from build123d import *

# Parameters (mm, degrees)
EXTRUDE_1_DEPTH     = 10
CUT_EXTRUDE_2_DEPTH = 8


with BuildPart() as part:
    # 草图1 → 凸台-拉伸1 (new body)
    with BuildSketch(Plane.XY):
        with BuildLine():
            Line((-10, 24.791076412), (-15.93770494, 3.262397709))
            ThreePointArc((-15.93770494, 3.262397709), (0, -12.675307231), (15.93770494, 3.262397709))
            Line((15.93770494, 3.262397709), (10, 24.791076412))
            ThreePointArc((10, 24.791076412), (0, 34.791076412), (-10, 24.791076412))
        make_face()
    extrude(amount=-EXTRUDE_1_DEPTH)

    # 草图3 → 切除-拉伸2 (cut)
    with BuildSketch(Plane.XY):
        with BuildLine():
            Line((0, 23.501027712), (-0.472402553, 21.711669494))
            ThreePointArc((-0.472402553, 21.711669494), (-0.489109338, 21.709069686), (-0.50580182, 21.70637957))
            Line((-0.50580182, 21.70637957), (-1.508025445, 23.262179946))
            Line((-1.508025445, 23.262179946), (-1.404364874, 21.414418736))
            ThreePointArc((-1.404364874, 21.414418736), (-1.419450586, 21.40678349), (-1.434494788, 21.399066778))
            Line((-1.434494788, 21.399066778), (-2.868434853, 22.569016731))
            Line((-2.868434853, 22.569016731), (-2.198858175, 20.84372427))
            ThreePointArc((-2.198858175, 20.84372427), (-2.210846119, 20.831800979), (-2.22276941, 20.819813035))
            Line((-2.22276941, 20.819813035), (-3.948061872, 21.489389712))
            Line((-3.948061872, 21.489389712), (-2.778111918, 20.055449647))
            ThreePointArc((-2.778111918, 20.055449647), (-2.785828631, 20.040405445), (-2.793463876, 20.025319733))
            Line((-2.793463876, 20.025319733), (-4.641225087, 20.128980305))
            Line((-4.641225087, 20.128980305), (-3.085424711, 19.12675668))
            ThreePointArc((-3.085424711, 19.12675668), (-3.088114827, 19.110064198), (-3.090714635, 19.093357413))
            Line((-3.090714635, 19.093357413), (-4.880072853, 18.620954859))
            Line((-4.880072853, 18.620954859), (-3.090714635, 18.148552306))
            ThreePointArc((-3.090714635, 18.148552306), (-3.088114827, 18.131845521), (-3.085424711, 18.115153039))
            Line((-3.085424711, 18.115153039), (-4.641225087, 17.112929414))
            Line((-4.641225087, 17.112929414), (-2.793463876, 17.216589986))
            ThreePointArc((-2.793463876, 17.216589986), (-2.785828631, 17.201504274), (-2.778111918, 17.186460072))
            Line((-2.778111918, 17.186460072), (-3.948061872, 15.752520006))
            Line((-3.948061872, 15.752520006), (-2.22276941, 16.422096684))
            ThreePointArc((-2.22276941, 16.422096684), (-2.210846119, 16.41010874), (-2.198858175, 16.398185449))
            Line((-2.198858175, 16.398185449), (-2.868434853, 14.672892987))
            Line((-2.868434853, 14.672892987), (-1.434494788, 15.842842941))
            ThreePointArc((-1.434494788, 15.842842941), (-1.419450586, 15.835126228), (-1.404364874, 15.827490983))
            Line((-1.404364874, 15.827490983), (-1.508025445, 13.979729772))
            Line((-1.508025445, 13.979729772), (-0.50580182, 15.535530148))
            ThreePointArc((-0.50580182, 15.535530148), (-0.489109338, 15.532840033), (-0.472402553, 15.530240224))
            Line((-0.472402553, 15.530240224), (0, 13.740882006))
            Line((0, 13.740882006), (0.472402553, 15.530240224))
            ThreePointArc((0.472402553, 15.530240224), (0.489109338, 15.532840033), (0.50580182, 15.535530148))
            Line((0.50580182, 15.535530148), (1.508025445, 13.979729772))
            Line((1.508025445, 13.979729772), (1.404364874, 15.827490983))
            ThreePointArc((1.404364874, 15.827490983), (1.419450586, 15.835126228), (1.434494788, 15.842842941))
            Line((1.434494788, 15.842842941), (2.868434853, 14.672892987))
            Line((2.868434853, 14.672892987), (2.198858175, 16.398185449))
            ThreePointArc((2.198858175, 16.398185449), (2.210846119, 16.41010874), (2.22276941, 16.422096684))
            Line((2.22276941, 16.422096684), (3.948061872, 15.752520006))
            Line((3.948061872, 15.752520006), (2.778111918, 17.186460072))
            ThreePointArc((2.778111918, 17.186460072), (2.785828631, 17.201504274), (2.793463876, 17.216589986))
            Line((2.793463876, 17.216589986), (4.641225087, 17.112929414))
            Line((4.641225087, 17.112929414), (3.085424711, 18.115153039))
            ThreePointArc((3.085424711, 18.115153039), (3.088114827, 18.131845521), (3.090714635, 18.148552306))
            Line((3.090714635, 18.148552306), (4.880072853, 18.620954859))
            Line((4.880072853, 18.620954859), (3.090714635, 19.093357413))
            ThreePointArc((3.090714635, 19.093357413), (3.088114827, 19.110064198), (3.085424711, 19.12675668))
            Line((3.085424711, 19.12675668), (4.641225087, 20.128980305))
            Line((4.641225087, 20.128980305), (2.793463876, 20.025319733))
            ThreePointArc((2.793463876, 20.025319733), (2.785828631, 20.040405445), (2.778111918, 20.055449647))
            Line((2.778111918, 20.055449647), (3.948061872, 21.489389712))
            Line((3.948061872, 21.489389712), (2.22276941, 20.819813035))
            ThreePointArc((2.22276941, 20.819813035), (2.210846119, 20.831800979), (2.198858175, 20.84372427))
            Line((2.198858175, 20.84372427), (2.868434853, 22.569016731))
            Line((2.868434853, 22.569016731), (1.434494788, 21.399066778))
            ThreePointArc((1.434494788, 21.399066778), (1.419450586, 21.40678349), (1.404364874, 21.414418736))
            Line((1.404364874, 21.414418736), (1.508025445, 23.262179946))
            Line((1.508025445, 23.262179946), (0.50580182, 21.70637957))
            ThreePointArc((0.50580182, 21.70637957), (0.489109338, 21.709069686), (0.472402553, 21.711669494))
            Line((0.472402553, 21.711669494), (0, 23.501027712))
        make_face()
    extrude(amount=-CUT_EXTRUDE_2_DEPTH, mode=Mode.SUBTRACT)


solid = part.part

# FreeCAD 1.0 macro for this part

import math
import FreeCAD as App
import Part
import Sketcher
Q = App.Units.Quantity

doc = App.newDocument("Part")
body = doc.addObject("PartDesign::Body", "Body")

# Sketch on XY plane
sketch1 = body.newObject("Sketcher::SketchObject", "Sketch")
sketch1.AttachmentSupport = (doc.getObject("XY_Plane"), [""])
sketch1.MapMode = "FlatFace"
sketch1.addGeometry(Part.LineSegment(App.Vector(-10, 25, 0), App.Vector(-16, 3, 0)), False)
sketch1.addGeometry(Part.ArcOfCircle(Part.Circle(App.Vector(0, 3, 0), App.Vector(0, 0, 1), 16), math.radians(180), math.radians(360)), False)
sketch1.addGeometry(Part.LineSegment(App.Vector(16, 3, 0), App.Vector(10, 25, 0)), False)
sketch1.addGeometry(Part.ArcOfCircle(Part.Circle(App.Vector(0, 25, 0), App.Vector(0, 0, 1), 10), math.radians(0), math.radians(180)), False)
sketch1.addConstraint(Sketcher.Constraint("Coincident", 0, 2, 1, 1))
sketch1.addConstraint(Sketcher.Constraint("Coincident", 1, 2, 2, 1))
sketch1.addConstraint(Sketcher.Constraint("Coincident", 2, 2, 3, 1))
sketch1.addConstraint(Sketcher.Constraint("Coincident", 3, 2, 0, 1))
sketch1.addConstraint(Sketcher.Constraint("Symmetric", 0, 2, 1, 2, -2))
sketch1.addConstraint(Sketcher.Constraint("Symmetric", 2, 2, 3, 2, -2))
sketch1.addConstraint(Sketcher.Constraint("Horizontal", 1, 3, 0, 2))
sketch1.addConstraint(Sketcher.Constraint("Horizontal", 3, 3, 2, 2))
sketch1.addConstraint(Sketcher.Constraint("Radius", 3, Q("10 mm")))
sketch1.addConstraint(Sketcher.Constraint("Radius", 1, Q("15.937705 mm")))
sketch1.addConstraint(Sketcher.Constraint("DistanceY", 1, 3, 3, 3, Q("21.528679 mm")))
sketch1.addConstraint(Sketcher.Constraint("DistanceY", -1, 1, 1, 3, Q("3.262398 mm")))
pad1 = body.newObject("PartDesign::Pad", "Pad")
pad1.Profile = sketch1
pad1.Length = 10
pad1.Reversed = True

# Sketch on XY plane
sketch2 = body.newObject("Sketcher::SketchObject", "Sketch001")
sketch2.AttachmentSupport = (doc.getObject("XY_Plane"), [""])
sketch2.MapMode = "FlatFace"
sketch2.addGeometry(Part.LineSegment(App.Vector(0, 23.501028, 0), App.Vector(-0.472403, 21.711669, 0)), False)
sketch2.addGeometry(Part.ArcOfCircle(Part.Circle(App.Vector(-0.000003, 18.620971, 0), App.Vector(0, 0, 1), 3.126592), math.radians(98.690157), math.radians(99.309842)), False)
sketch2.addGeometry(Part.LineSegment(App.Vector(-0.505802, 21.70638, 0), App.Vector(-1.508025, 23.26218, 0)), False)
sketch2.addGeometry(Part.LineSegment(App.Vector(-1.508025, 23.26218, 0), App.Vector(-1.404365, 21.414419, 0)), False)
sketch2.addGeometry(Part.ArcOfCircle(Part.Circle(App.Vector(0.00002, 18.620916, 0), App.Vector(0, 0, 1), 3.126652), math.radians(116.690164), math.radians(117.309836)), False)
sketch2.addGeometry(Part.LineSegment(App.Vector(-1.434495, 21.399067, 0), App.Vector(-2.868435, 22.569017, 0)), False)
sketch2.addGeometry(Part.LineSegment(App.Vector(-2.868435, 22.569017, 0), App.Vector(-2.198858, 20.843724, 0)), False)
sketch2.addGeometry(Part.ArcOfCircle(Part.Circle(App.Vector(0, 18.620955, 0), App.Vector(0, 0, 1), 3.126609), math.radians(134.690159), math.radians(135.309841)), False)
sketch2.addGeometry(Part.LineSegment(App.Vector(-2.222769, 20.819813, 0), App.Vector(-3.948062, 21.48939, 0)), False)
sketch2.addGeometry(Part.LineSegment(App.Vector(-3.948062, 21.48939, 0), App.Vector(-2.778112, 20.05545, 0)), False)
sketch2.addGeometry(Part.ArcOfCircle(Part.Circle(App.Vector(-0.000016, 18.620963, 0), App.Vector(0, 0, 1), 3.126591), math.radians(152.690158), math.radians(153.309842)), False)
sketch2.addGeometry(Part.LineSegment(App.Vector(-2.793464, 20.02532, 0), App.Vector(-4.641225, 20.12898, 0)), False)
sketch2.addGeometry(Part.LineSegment(App.Vector(-4.641225, 20.12898, 0), App.Vector(-3.085425, 19.126757, 0)), False)
sketch2.addGeometry(Part.ArcOfCircle(Part.Circle(App.Vector(-0.000017, 18.620957, 0), App.Vector(0, 0, 1), 3.126592), math.radians(170.690158), math.radians(171.309843)), False)
sketch2.addGeometry(Part.LineSegment(App.Vector(-3.090715, 19.093357, 0), App.Vector(-4.880073, 18.620955, 0)), False)
sketch2.addGeometry(Part.LineSegment(App.Vector(-4.880073, 18.620955, 0), App.Vector(-3.090715, 18.148552, 0)), False)
sketch2.addGeometry(Part.ArcOfCircle(Part.Circle(App.Vector(-0.000017, 18.620952, 0), App.Vector(0, 0, 1), 3.126592), math.radians(-171.309843), math.radians(-170.690158)), False)
sketch2.addGeometry(Part.LineSegment(App.Vector(-3.085425, 18.115153, 0), App.Vector(-4.641225, 17.112929, 0)), False)
sketch2.addGeometry(Part.LineSegment(App.Vector(-4.641225, 17.112929, 0), App.Vector(-2.793464, 17.21659, 0)), False)
sketch2.addGeometry(Part.ArcOfCircle(Part.Circle(App.Vector(-0.000016, 18.620947, 0), App.Vector(0, 0, 1), 3.126591), math.radians(-153.309842), math.radians(-152.690158)), False)
sketch2.addGeometry(Part.LineSegment(App.Vector(-2.778112, 17.18646, 0), App.Vector(-3.948062, 15.75252, 0)), False)
sketch2.addGeometry(Part.LineSegment(App.Vector(-3.948062, 15.75252, 0), App.Vector(-2.222769, 16.422097, 0)), False)
sketch2.addGeometry(Part.ArcOfCircle(Part.Circle(App.Vector(0, 18.620955, 0), App.Vector(0, 0, 1), 3.126609), math.radians(-135.309841), math.radians(-134.690159)), False)
sketch2.addGeometry(Part.LineSegment(App.Vector(-2.198858, 16.398185, 0), App.Vector(-2.868435, 14.672893, 0)), False)
sketch2.addGeometry(Part.LineSegment(App.Vector(-2.868435, 14.672893, 0), App.Vector(-1.434495, 15.842843, 0)), False)
sketch2.addGeometry(Part.ArcOfCircle(Part.Circle(App.Vector(-0.000008, 18.620939, 0), App.Vector(0, 0, 1), 3.126591), math.radians(-117.309842), math.radians(-116.690158)), False)
sketch2.addGeometry(Part.LineSegment(App.Vector(-1.404365, 15.827491, 0), App.Vector(-1.508025, 13.97973, 0)), False)
sketch2.addGeometry(Part.LineSegment(App.Vector(-1.508025, 13.97973, 0), App.Vector(-0.505802, 15.53553, 0)), False)
sketch2.addGeometry(Part.ArcOfCircle(Part.Circle(App.Vector(0.000008, 18.621005, 0), App.Vector(0, 0, 1), 3.126659), math.radians(-99.309835), math.radians(-98.690164)), False)
sketch2.addGeometry(Part.LineSegment(App.Vector(-0.472403, 15.53024, 0), App.Vector(0, 13.740882, 0)), False)
sketch2.addGeometry(Part.LineSegment(App.Vector(0, 13.740882, 0), App.Vector(0.472403, 15.53024, 0)), False)
sketch2.addGeometry(Part.ArcOfCircle(Part.Circle(App.Vector(-0.000008, 18.621005, 0), App.Vector(0, 0, 1), 3.126659), math.radians(-81.309836), math.radians(-80.690165)), False)
sketch2.addGeometry(Part.LineSegment(App.Vector(0.505802, 15.53553, 0), App.Vector(1.508025, 13.97973, 0)), False)
sketch2.addGeometry(Part.LineSegment(App.Vector(1.508025, 13.97973, 0), App.Vector(1.404365, 15.827491, 0)), False)
sketch2.addGeometry(Part.ArcOfCircle(Part.Circle(App.Vector(0.000008, 18.620939, 0), App.Vector(0, 0, 1), 3.126591), math.radians(-63.309842), math.radians(-62.690158)), False)
sketch2.addGeometry(Part.LineSegment(App.Vector(1.434495, 15.842843, 0), App.Vector(2.868435, 14.672893, 0)), False)
sketch2.addGeometry(Part.LineSegment(App.Vector(2.868435, 14.672893, 0), App.Vector(2.198858, 16.398185, 0)), False)
sketch2.addGeometry(Part.ArcOfCircle(Part.Circle(App.Vector(0, 18.620955, 0), App.Vector(0, 0, 1), 3.126609), math.radians(-45.309841), math.radians(-44.690159)), False)
sketch2.addGeometry(Part.LineSegment(App.Vector(2.222769, 16.422097, 0), App.Vector(3.948062, 15.75252, 0)), False)
sketch2.addGeometry(Part.LineSegment(App.Vector(3.948062, 15.75252, 0), App.Vector(2.778112, 17.18646, 0)), False)
sketch2.addGeometry(Part.ArcOfCircle(Part.Circle(App.Vector(0.000016, 18.620947, 0), App.Vector(0, 0, 1), 3.126591), math.radians(-27.309842), math.radians(-26.690158)), False)
sketch2.addGeometry(Part.LineSegment(App.Vector(2.793464, 17.21659, 0), App.Vector(4.641225, 17.112929, 0)), False)
sketch2.addGeometry(Part.LineSegment(App.Vector(4.641225, 17.112929, 0), App.Vector(3.085425, 18.115153, 0)), False)
sketch2.addGeometry(Part.ArcOfCircle(Part.Circle(App.Vector(0.000017, 18.620952, 0), App.Vector(0, 0, 1), 3.126592), math.radians(-9.309842), math.radians(-8.690157)), False)
sketch2.addGeometry(Part.LineSegment(App.Vector(3.090715, 18.148552, 0), App.Vector(4.880073, 18.620955, 0)), False)
sketch2.addGeometry(Part.LineSegment(App.Vector(4.880073, 18.620955, 0), App.Vector(3.090715, 19.093357, 0)), False)
sketch2.addGeometry(Part.ArcOfCircle(Part.Circle(App.Vector(0.000017, 18.620957, 0), App.Vector(0, 0, 1), 3.126592), math.radians(8.690157), math.radians(9.309842)), False)
sketch2.addGeometry(Part.LineSegment(App.Vector(3.085425, 19.126757, 0), App.Vector(4.641225, 20.12898, 0)), False)
sketch2.addGeometry(Part.LineSegment(App.Vector(4.641225, 20.12898, 0), App.Vector(2.793464, 20.02532, 0)), False)
sketch2.addGeometry(Part.ArcOfCircle(Part.Circle(App.Vector(0.000016, 18.620963, 0), App.Vector(0, 0, 1), 3.126591), math.radians(26.690158), math.radians(27.309842)), False)
sketch2.addGeometry(Part.LineSegment(App.Vector(2.778112, 20.05545, 0), App.Vector(3.948062, 21.48939, 0)), False)
sketch2.addGeometry(Part.LineSegment(App.Vector(3.948062, 21.48939, 0), App.Vector(2.222769, 20.819813, 0)), False)
sketch2.addGeometry(Part.ArcOfCircle(Part.Circle(App.Vector(0, 18.620955, 0), App.Vector(0, 0, 1), 3.126609), math.radians(44.690159), math.radians(45.309841)), False)
sketch2.addGeometry(Part.LineSegment(App.Vector(2.198858, 20.843724, 0), App.Vector(2.868435, 22.569017, 0)), False)
sketch2.addGeometry(Part.LineSegment(App.Vector(2.868435, 22.569017, 0), App.Vector(1.434495, 21.399067, 0)), False)
sketch2.addGeometry(Part.ArcOfCircle(Part.Circle(App.Vector(-0.00002, 18.620916, 0), App.Vector(0, 0, 1), 3.126652), math.radians(62.690164), math.radians(63.309836)), False)
sketch2.addGeometry(Part.LineSegment(App.Vector(1.404365, 21.414419, 0), App.Vector(1.508025, 23.26218, 0)), False)
sketch2.addGeometry(Part.LineSegment(App.Vector(1.508025, 23.26218, 0), App.Vector(0.505802, 21.70638, 0)), False)
sketch2.addGeometry(Part.ArcOfCircle(Part.Circle(App.Vector(0.000003, 18.620971, 0), App.Vector(0, 0, 1), 3.126592), math.radians(80.690158), math.radians(81.309843)), False)
sketch2.addGeometry(Part.LineSegment(App.Vector(0.472403, 21.711669, 0), App.Vector(0, 23.501028, 0)), False)
sketch2.addConstraint(Sketcher.Constraint("Coincident", 0, 2, 1, 1))
sketch2.addConstraint(Sketcher.Constraint("Coincident", 1, 2, 2, 1))
sketch2.addConstraint(Sketcher.Constraint("Coincident", 2, 2, 3, 1))
sketch2.addConstraint(Sketcher.Constraint("Coincident", 3, 2, 4, 1))
sketch2.addConstraint(Sketcher.Constraint("Coincident", 4, 2, 5, 1))
sketch2.addConstraint(Sketcher.Constraint("Coincident", 5, 2, 6, 1))
sketch2.addConstraint(Sketcher.Constraint("Coincident", 6, 2, 7, 1))
sketch2.addConstraint(Sketcher.Constraint("Coincident", 7, 2, 8, 1))
sketch2.addConstraint(Sketcher.Constraint("Coincident", 8, 2, 9, 1))
sketch2.addConstraint(Sketcher.Constraint("Coincident", 9, 2, 10, 1))
sketch2.addConstraint(Sketcher.Constraint("Coincident", 10, 2, 11, 1))
sketch2.addConstraint(Sketcher.Constraint("Coincident", 11, 2, 12, 1))
sketch2.addConstraint(Sketcher.Constraint("Coincident", 12, 2, 13, 1))
sketch2.addConstraint(Sketcher.Constraint("Coincident", 13, 2, 14, 1))
sketch2.addConstraint(Sketcher.Constraint("Coincident", 14, 2, 15, 1))
sketch2.addConstraint(Sketcher.Constraint("Coincident", 15, 2, 16, 1))
sketch2.addConstraint(Sketcher.Constraint("Coincident", 16, 2, 17, 1))
sketch2.addConstraint(Sketcher.Constraint("Coincident", 17, 2, 18, 1))
sketch2.addConstraint(Sketcher.Constraint("Coincident", 18, 2, 19, 1))
sketch2.addConstraint(Sketcher.Constraint("Coincident", 19, 2, 20, 1))
sketch2.addConstraint(Sketcher.Constraint("Coincident", 20, 2, 21, 1))
sketch2.addConstraint(Sketcher.Constraint("Coincident", 21, 2, 22, 1))
sketch2.addConstraint(Sketcher.Constraint("Coincident", 22, 2, 23, 1))
sketch2.addConstraint(Sketcher.Constraint("Coincident", 23, 2, 24, 1))
sketch2.addConstraint(Sketcher.Constraint("Coincident", 24, 2, 25, 1))
sketch2.addConstraint(Sketcher.Constraint("Coincident", 25, 2, 26, 1))
sketch2.addConstraint(Sketcher.Constraint("Coincident", 26, 2, 27, 1))
sketch2.addConstraint(Sketcher.Constraint("Coincident", 27, 2, 28, 1))
sketch2.addConstraint(Sketcher.Constraint("Coincident", 28, 2, 29, 1))
sketch2.addConstraint(Sketcher.Constraint("Coincident", 29, 2, 30, 1))
sketch2.addConstraint(Sketcher.Constraint("Coincident", 30, 2, 31, 1))
sketch2.addConstraint(Sketcher.Constraint("Coincident", 31, 2, 32, 1))
sketch2.addConstraint(Sketcher.Constraint("Coincident", 32, 2, 33, 1))
sketch2.addConstraint(Sketcher.Constraint("Coincident", 33, 2, 34, 1))
sketch2.addConstraint(Sketcher.Constraint("Coincident", 34, 2, 35, 1))
sketch2.addConstraint(Sketcher.Constraint("Coincident", 35, 2, 36, 1))
sketch2.addConstraint(Sketcher.Constraint("Coincident", 36, 2, 37, 1))
sketch2.addConstraint(Sketcher.Constraint("Coincident", 37, 2, 38, 1))
sketch2.addConstraint(Sketcher.Constraint("Coincident", 38, 2, 39, 1))
sketch2.addConstraint(Sketcher.Constraint("Coincident", 39, 2, 40, 1))
sketch2.addConstraint(Sketcher.Constraint("Coincident", 40, 2, 41, 1))
sketch2.addConstraint(Sketcher.Constraint("Coincident", 41, 2, 42, 1))
sketch2.addConstraint(Sketcher.Constraint("Coincident", 42, 2, 43, 1))
sketch2.addConstraint(Sketcher.Constraint("Coincident", 43, 2, 44, 1))
sketch2.addConstraint(Sketcher.Constraint("Coincident", 44, 2, 45, 1))
sketch2.addConstraint(Sketcher.Constraint("Coincident", 45, 2, 46, 1))
sketch2.addConstraint(Sketcher.Constraint("Coincident", 46, 2, 47, 1))
sketch2.addConstraint(Sketcher.Constraint("Coincident", 47, 2, 48, 1))
sketch2.addConstraint(Sketcher.Constraint("Coincident", 48, 2, 49, 1))
sketch2.addConstraint(Sketcher.Constraint("Coincident", 49, 2, 50, 1))
sketch2.addConstraint(Sketcher.Constraint("Coincident", 50, 2, 51, 1))
sketch2.addConstraint(Sketcher.Constraint("Coincident", 51, 2, 52, 1))
sketch2.addConstraint(Sketcher.Constraint("Coincident", 52, 2, 53, 1))
sketch2.addConstraint(Sketcher.Constraint("Coincident", 53, 2, 54, 1))
sketch2.addConstraint(Sketcher.Constraint("Coincident", 54, 2, 55, 1))
sketch2.addConstraint(Sketcher.Constraint("Coincident", 55, 2, 56, 1))
sketch2.addConstraint(Sketcher.Constraint("Coincident", 56, 2, 57, 1))
sketch2.addConstraint(Sketcher.Constraint("Coincident", 57, 2, 58, 1))
sketch2.addConstraint(Sketcher.Constraint("Coincident", 58, 2, 59, 1))
sketch2.addConstraint(Sketcher.Constraint("Coincident", 59, 2, 0, 1))
sketch2.addConstraint(Sketcher.Constraint("Coincident", 13, 3, 10, 3))
sketch2.addConstraint(Sketcher.Constraint("Coincident", 16, 3, 13, 3))
sketch2.addConstraint(Sketcher.Constraint("Coincident", 19, 3, 16, 3))
sketch2.addConstraint(Sketcher.Constraint("Coincident", 22, 3, 7, 3))
sketch2.addConstraint(Sketcher.Constraint("Coincident", 37, 3, 7, 3))
sketch2.addConstraint(Sketcher.Constraint("Coincident", 43, 3, 40, 3))
sketch2.addConstraint(Sketcher.Constraint("Coincident", 46, 3, 43, 3))
sketch2.addConstraint(Sketcher.Constraint("Coincident", 49, 3, 46, 3))
sketch2.addConstraint(Sketcher.Constraint("Coincident", 52, 3, 7, 3))
sketch2.addConstraint(Sketcher.Constraint("Coincident", 58, 3, 1, 3))
sketch2.addConstraint(Sketcher.Constraint("PointOnObject", 7, 3, -2))
sketch2.addConstraint(Sketcher.Constraint("PointOnObject", 29, 2, -2))
sketch2.addConstraint(Sketcher.Constraint("PointOnObject", 59, 2, -2))
sketch2.addConstraint(Sketcher.Constraint("Radius", 1, Q("3.126592 mm")))
sketch2.addConstraint(Sketcher.Constraint("Radius", 4, Q("3.126652 mm")))
sketch2.addConstraint(Sketcher.Constraint("Radius", 7, Q("3.126609 mm")))
sketch2.addConstraint(Sketcher.Constraint("Radius", 10, Q("3.126591 mm")))
sketch2.addConstraint(Sketcher.Constraint("Radius", 13, Q("3.126592 mm")))
sketch2.addConstraint(Sketcher.Constraint("Radius", 16, Q("3.126592 mm")))
sketch2.addConstraint(Sketcher.Constraint("Radius", 19, Q("3.126591 mm")))
sketch2.addConstraint(Sketcher.Constraint("Radius", 22, Q("3.126609 mm")))
sketch2.addConstraint(Sketcher.Constraint("Radius", 25, Q("3.126591 mm")))
sketch2.addConstraint(Sketcher.Constraint("Radius", 28, Q("3.126659 mm")))
sketch2.addConstraint(Sketcher.Constraint("Radius", 31, Q("3.126659 mm")))
sketch2.addConstraint(Sketcher.Constraint("Radius", 34, Q("3.126591 mm")))
sketch2.addConstraint(Sketcher.Constraint("Radius", 37, Q("3.126609 mm")))
sketch2.addConstraint(Sketcher.Constraint("Radius", 40, Q("3.126591 mm")))
sketch2.addConstraint(Sketcher.Constraint("Radius", 43, Q("3.126592 mm")))
sketch2.addConstraint(Sketcher.Constraint("Radius", 46, Q("3.126592 mm")))
sketch2.addConstraint(Sketcher.Constraint("Radius", 49, Q("3.126591 mm")))
sketch2.addConstraint(Sketcher.Constraint("Radius", 52, Q("3.126609 mm")))
sketch2.addConstraint(Sketcher.Constraint("Radius", 55, Q("3.126652 mm")))
sketch2.addConstraint(Sketcher.Constraint("Radius", 58, Q("3.126592 mm")))
sketch2.addConstraint(Sketcher.Constraint("DistanceX", 1, 2, -1, 1, Q("0.505802 mm")))
sketch2.addConstraint(Sketcher.Constraint("DistanceX", 27, 2, -1, 1, Q("0.505802 mm")))
sketch2.addConstraint(Sketcher.Constraint("DistanceX", -1, 1, 31, 2, Q("0.505802 mm")))
sketch2.addConstraint(Sketcher.Constraint("DistanceX", -1, 1, 57, 2, Q("0.505802 mm")))
sketch2.addConstraint(Sketcher.Constraint("DistanceY", -1, 1, 1, 3, Q("18.620971 mm")))
sketch2.addConstraint(Sketcher.Constraint("DistanceY", -1, 1, 25, 3, Q("18.620939 mm")))
sketch2.addConstraint(Sketcher.Constraint("DistanceY", -1, 1, 34, 3, Q("18.620939 mm")))
sketch2.addConstraint(Sketcher.Constraint("DistanceY", -1, 1, 0, 2, Q("21.711669 mm")))
sketch2.addConstraint(Sketcher.Constraint("DistanceY", -1, 1, 1, 2, Q("21.70638 mm")))
sketch2.addConstraint(Sketcher.Constraint("DistanceY", -1, 1, 2, 2, Q("23.26218 mm")))
sketch2.addConstraint(Sketcher.Constraint("DistanceY", -1, 1, 3, 2, Q("21.414419 mm")))
sketch2.addConstraint(Sketcher.Constraint("DistanceX", 6, 2, -1, 1, Q("2.198858 mm")))
sketch2.addConstraint(Sketcher.Constraint("DistanceX", 7, 2, -1, 1, Q("2.222769 mm")))
sketch2.addConstraint(Sketcher.Constraint("DistanceX", 8, 2, -1, 1, Q("3.948062 mm")))
sketch2.addConstraint(Sketcher.Constraint("DistanceY", -1, 1, 8, 2, Q("21.48939 mm")))
sketch2.addConstraint(Sketcher.Constraint("DistanceX", 9, 2, -1, 1, Q("2.778112 mm")))
sketch2.addConstraint(Sketcher.Constraint("DistanceY", -1, 1, 9, 2, Q("20.05545 mm")))
sketch2.addConstraint(Sketcher.Constraint("DistanceY", -1, 1, 10, 2, Q("20.02532 mm")))
sketch2.addConstraint(Sketcher.Constraint("DistanceY", -1, 1, 11, 2, Q("20.12898 mm")))
sketch2.addConstraint(Sketcher.Constraint("DistanceY", -1, 1, 17, 2, Q("17.112929 mm")))
sketch2.addConstraint(Sketcher.Constraint("DistanceY", -1, 1, 18, 2, Q("17.21659 mm")))
sketch2.addConstraint(Sketcher.Constraint("DistanceX", 19, 2, -1, 1, Q("2.778112 mm")))
sketch2.addConstraint(Sketcher.Constraint("DistanceY", -1, 1, 19, 2, Q("17.18646 mm")))
sketch2.addConstraint(Sketcher.Constraint("DistanceX", 20, 2, -1, 1, Q("3.948062 mm")))
sketch2.addConstraint(Sketcher.Constraint("DistanceY", -1, 1, 20, 2, Q("15.75252 mm")))
sketch2.addConstraint(Sketcher.Constraint("DistanceX", 21, 2, -1, 1, Q("2.222769 mm")))
sketch2.addConstraint(Sketcher.Constraint("DistanceX", 22, 2, -1, 1, Q("2.198858 mm")))
sketch2.addConstraint(Sketcher.Constraint("DistanceY", -1, 1, 25, 2, Q("15.827491 mm")))
sketch2.addConstraint(Sketcher.Constraint("DistanceY", -1, 1, 26, 2, Q("13.97973 mm")))
sketch2.addConstraint(Sketcher.Constraint("DistanceY", -1, 1, 27, 2, Q("15.53553 mm")))
sketch2.addConstraint(Sketcher.Constraint("DistanceY", -1, 1, 28, 2, Q("15.53024 mm")))
sketch2.addConstraint(Sketcher.Constraint("DistanceY", -1, 1, 30, 2, Q("15.53024 mm")))
sketch2.addConstraint(Sketcher.Constraint("DistanceY", -1, 1, 31, 2, Q("15.53553 mm")))
sketch2.addConstraint(Sketcher.Constraint("DistanceY", -1, 1, 32, 2, Q("13.97973 mm")))
sketch2.addConstraint(Sketcher.Constraint("DistanceY", -1, 1, 33, 2, Q("15.827491 mm")))
sketch2.addConstraint(Sketcher.Constraint("DistanceX", -1, 1, 36, 2, Q("2.198858 mm")))
sketch2.addConstraint(Sketcher.Constraint("DistanceX", -1, 1, 37, 2, Q("2.222769 mm")))
sketch2.addConstraint(Sketcher.Constraint("DistanceX", -1, 1, 38, 2, Q("3.948062 mm")))
sketch2.addConstraint(Sketcher.Constraint("DistanceY", -1, 1, 38, 2, Q("15.75252 mm")))
sketch2.addConstraint(Sketcher.Constraint("DistanceX", -1, 1, 39, 2, Q("2.778112 mm")))
sketch2.addConstraint(Sketcher.Constraint("DistanceY", -1, 1, 39, 2, Q("17.18646 mm")))
sketch2.addConstraint(Sketcher.Constraint("DistanceY", -1, 1, 40, 2, Q("17.21659 mm")))
sketch2.addConstraint(Sketcher.Constraint("DistanceY", -1, 1, 41, 2, Q("17.112929 mm")))
sketch2.addConstraint(Sketcher.Constraint("DistanceY", -1, 1, 47, 2, Q("20.12898 mm")))
sketch2.addConstraint(Sketcher.Constraint("DistanceY", -1, 1, 48, 2, Q("20.02532 mm")))
sketch2.addConstraint(Sketcher.Constraint("DistanceX", -1, 1, 49, 2, Q("2.778112 mm")))
sketch2.addConstraint(Sketcher.Constraint("DistanceY", -1, 1, 49, 2, Q("20.05545 mm")))
sketch2.addConstraint(Sketcher.Constraint("DistanceX", -1, 1, 50, 2, Q("3.948062 mm")))
sketch2.addConstraint(Sketcher.Constraint("DistanceY", -1, 1, 50, 2, Q("21.48939 mm")))
sketch2.addConstraint(Sketcher.Constraint("DistanceX", -1, 1, 51, 2, Q("2.222769 mm")))
sketch2.addConstraint(Sketcher.Constraint("DistanceX", -1, 1, 52, 2, Q("2.198858 mm")))
sketch2.addConstraint(Sketcher.Constraint("DistanceY", -1, 1, 55, 2, Q("21.414419 mm")))
sketch2.addConstraint(Sketcher.Constraint("DistanceY", -1, 1, 56, 2, Q("23.26218 mm")))
sketch2.addConstraint(Sketcher.Constraint("DistanceY", -1, 1, 58, 2, Q("21.711669 mm")))
sketch2.addConstraint(Sketcher.Constraint("Distance", 0, Q("1.850667 mm")))
sketch2.addConstraint(Sketcher.Constraint("Distance", 2, Q("1.850667 mm")))
sketch2.addConstraint(Sketcher.Constraint("Distance", 3, Q("1.850667 mm")))
sketch2.addConstraint(Sketcher.Constraint("Distance", 5, Q("1.850667 mm")))
sketch2.addConstraint(Sketcher.Constraint("Distance", 6, Q("1.850667 mm")))
sketch2.addConstraint(Sketcher.Constraint("Distance", 8, Q("1.850667 mm")))
sketch2.addConstraint(Sketcher.Constraint("Distance", 11, Q("1.850667 mm")))
sketch2.addConstraint(Sketcher.Constraint("Distance", 12, Q("1.850667 mm")))
sketch2.addConstraint(Sketcher.Constraint("Distance", 14, Q("1.850667 mm")))
sketch2.addConstraint(Sketcher.Constraint("Distance", 15, Q("1.850667 mm")))
sketch2.addConstraint(Sketcher.Constraint("Distance", 17, Q("1.850667 mm")))
sketch2.addConstraint(Sketcher.Constraint("Distance", 18, Q("1.850667 mm")))
sketch2.addConstraint(Sketcher.Constraint("Distance", 23, Q("1.850667 mm")))
sketch2.addConstraint(Sketcher.Constraint("Distance", 24, Q("1.850667 mm")))
sketch2.addConstraint(Sketcher.Constraint("Distance", 26, Q("1.850667 mm")))
sketch2.addConstraint(Sketcher.Constraint("Distance", 27, Q("1.850667 mm")))
sketch2.addConstraint(Sketcher.Constraint("Distance", 29, Q("1.850667 mm")))
sketch2.addConstraint(Sketcher.Constraint("Distance", 30, Q("1.850667 mm")))
sketch2.addConstraint(Sketcher.Constraint("Distance", 32, Q("1.850667 mm")))
sketch2.addConstraint(Sketcher.Constraint("Distance", 33, Q("1.850667 mm")))
sketch2.addConstraint(Sketcher.Constraint("Distance", 35, Q("1.850667 mm")))
sketch2.addConstraint(Sketcher.Constraint("Distance", 36, Q("1.850667 mm")))
sketch2.addConstraint(Sketcher.Constraint("Distance", 41, Q("1.850667 mm")))
sketch2.addConstraint(Sketcher.Constraint("Distance", 42, Q("1.850667 mm")))
sketch2.addConstraint(Sketcher.Constraint("Distance", 44, Q("1.850667 mm")))
sketch2.addConstraint(Sketcher.Constraint("Distance", 45, Q("1.850667 mm")))
sketch2.addConstraint(Sketcher.Constraint("Distance", 47, Q("1.850667 mm")))
sketch2.addConstraint(Sketcher.Constraint("Distance", 48, Q("1.850667 mm")))
sketch2.addConstraint(Sketcher.Constraint("Distance", 53, Q("1.850667 mm")))
sketch2.addConstraint(Sketcher.Constraint("Distance", 54, Q("1.850667 mm")))
sketch2.addConstraint(Sketcher.Constraint("Distance", 56, Q("1.850667 mm")))
sketch2.addConstraint(Sketcher.Constraint("Distance", 57, Q("1.850667 mm")))
sketch2.addConstraint(Sketcher.Constraint("DistanceY", -1, 1, 4, 3, Q("18.620916 mm")))
sketch2.addConstraint(Sketcher.Constraint("DistanceY", -1, 1, 28, 3, Q("18.621005 mm")))
sketch2.addConstraint(Sketcher.Constraint("DistanceY", -1, 1, 55, 3, Q("18.620916 mm")))
sketch2.addConstraint(Sketcher.Constraint("DistanceX", 4, 2, -1, 1, Q("1.434495 mm")))
sketch2.addConstraint(Sketcher.Constraint("DistanceX", 13, 2, -1, 1, Q("3.090715 mm")))
sketch2.addConstraint(Sketcher.Constraint("DistanceX", 14, 2, -1, 1, Q("4.880073 mm")))
sketch2.addConstraint(Sketcher.Constraint("DistanceX", 23, 2, -1, 1, Q("2.868435 mm")))
sketch2.addConstraint(Sketcher.Constraint("DistanceX", -1, 1, 34, 2, Q("1.434495 mm")))
sketch2.addConstraint(Sketcher.Constraint("DistanceX", -1, 1, 43, 2, Q("3.090715 mm")))
sketch2.addConstraint(Sketcher.Constraint("DistanceX", -1, 1, 44, 2, Q("4.880073 mm")))
sketch2.addConstraint(Sketcher.Constraint("DistanceX", -1, 1, 53, 2, Q("2.868435 mm")))
pocket1 = body.newObject("PartDesign::Pocket", "Pocket")
pocket1.Profile = sketch2
pocket1.Length = 8

doc.recompute()
